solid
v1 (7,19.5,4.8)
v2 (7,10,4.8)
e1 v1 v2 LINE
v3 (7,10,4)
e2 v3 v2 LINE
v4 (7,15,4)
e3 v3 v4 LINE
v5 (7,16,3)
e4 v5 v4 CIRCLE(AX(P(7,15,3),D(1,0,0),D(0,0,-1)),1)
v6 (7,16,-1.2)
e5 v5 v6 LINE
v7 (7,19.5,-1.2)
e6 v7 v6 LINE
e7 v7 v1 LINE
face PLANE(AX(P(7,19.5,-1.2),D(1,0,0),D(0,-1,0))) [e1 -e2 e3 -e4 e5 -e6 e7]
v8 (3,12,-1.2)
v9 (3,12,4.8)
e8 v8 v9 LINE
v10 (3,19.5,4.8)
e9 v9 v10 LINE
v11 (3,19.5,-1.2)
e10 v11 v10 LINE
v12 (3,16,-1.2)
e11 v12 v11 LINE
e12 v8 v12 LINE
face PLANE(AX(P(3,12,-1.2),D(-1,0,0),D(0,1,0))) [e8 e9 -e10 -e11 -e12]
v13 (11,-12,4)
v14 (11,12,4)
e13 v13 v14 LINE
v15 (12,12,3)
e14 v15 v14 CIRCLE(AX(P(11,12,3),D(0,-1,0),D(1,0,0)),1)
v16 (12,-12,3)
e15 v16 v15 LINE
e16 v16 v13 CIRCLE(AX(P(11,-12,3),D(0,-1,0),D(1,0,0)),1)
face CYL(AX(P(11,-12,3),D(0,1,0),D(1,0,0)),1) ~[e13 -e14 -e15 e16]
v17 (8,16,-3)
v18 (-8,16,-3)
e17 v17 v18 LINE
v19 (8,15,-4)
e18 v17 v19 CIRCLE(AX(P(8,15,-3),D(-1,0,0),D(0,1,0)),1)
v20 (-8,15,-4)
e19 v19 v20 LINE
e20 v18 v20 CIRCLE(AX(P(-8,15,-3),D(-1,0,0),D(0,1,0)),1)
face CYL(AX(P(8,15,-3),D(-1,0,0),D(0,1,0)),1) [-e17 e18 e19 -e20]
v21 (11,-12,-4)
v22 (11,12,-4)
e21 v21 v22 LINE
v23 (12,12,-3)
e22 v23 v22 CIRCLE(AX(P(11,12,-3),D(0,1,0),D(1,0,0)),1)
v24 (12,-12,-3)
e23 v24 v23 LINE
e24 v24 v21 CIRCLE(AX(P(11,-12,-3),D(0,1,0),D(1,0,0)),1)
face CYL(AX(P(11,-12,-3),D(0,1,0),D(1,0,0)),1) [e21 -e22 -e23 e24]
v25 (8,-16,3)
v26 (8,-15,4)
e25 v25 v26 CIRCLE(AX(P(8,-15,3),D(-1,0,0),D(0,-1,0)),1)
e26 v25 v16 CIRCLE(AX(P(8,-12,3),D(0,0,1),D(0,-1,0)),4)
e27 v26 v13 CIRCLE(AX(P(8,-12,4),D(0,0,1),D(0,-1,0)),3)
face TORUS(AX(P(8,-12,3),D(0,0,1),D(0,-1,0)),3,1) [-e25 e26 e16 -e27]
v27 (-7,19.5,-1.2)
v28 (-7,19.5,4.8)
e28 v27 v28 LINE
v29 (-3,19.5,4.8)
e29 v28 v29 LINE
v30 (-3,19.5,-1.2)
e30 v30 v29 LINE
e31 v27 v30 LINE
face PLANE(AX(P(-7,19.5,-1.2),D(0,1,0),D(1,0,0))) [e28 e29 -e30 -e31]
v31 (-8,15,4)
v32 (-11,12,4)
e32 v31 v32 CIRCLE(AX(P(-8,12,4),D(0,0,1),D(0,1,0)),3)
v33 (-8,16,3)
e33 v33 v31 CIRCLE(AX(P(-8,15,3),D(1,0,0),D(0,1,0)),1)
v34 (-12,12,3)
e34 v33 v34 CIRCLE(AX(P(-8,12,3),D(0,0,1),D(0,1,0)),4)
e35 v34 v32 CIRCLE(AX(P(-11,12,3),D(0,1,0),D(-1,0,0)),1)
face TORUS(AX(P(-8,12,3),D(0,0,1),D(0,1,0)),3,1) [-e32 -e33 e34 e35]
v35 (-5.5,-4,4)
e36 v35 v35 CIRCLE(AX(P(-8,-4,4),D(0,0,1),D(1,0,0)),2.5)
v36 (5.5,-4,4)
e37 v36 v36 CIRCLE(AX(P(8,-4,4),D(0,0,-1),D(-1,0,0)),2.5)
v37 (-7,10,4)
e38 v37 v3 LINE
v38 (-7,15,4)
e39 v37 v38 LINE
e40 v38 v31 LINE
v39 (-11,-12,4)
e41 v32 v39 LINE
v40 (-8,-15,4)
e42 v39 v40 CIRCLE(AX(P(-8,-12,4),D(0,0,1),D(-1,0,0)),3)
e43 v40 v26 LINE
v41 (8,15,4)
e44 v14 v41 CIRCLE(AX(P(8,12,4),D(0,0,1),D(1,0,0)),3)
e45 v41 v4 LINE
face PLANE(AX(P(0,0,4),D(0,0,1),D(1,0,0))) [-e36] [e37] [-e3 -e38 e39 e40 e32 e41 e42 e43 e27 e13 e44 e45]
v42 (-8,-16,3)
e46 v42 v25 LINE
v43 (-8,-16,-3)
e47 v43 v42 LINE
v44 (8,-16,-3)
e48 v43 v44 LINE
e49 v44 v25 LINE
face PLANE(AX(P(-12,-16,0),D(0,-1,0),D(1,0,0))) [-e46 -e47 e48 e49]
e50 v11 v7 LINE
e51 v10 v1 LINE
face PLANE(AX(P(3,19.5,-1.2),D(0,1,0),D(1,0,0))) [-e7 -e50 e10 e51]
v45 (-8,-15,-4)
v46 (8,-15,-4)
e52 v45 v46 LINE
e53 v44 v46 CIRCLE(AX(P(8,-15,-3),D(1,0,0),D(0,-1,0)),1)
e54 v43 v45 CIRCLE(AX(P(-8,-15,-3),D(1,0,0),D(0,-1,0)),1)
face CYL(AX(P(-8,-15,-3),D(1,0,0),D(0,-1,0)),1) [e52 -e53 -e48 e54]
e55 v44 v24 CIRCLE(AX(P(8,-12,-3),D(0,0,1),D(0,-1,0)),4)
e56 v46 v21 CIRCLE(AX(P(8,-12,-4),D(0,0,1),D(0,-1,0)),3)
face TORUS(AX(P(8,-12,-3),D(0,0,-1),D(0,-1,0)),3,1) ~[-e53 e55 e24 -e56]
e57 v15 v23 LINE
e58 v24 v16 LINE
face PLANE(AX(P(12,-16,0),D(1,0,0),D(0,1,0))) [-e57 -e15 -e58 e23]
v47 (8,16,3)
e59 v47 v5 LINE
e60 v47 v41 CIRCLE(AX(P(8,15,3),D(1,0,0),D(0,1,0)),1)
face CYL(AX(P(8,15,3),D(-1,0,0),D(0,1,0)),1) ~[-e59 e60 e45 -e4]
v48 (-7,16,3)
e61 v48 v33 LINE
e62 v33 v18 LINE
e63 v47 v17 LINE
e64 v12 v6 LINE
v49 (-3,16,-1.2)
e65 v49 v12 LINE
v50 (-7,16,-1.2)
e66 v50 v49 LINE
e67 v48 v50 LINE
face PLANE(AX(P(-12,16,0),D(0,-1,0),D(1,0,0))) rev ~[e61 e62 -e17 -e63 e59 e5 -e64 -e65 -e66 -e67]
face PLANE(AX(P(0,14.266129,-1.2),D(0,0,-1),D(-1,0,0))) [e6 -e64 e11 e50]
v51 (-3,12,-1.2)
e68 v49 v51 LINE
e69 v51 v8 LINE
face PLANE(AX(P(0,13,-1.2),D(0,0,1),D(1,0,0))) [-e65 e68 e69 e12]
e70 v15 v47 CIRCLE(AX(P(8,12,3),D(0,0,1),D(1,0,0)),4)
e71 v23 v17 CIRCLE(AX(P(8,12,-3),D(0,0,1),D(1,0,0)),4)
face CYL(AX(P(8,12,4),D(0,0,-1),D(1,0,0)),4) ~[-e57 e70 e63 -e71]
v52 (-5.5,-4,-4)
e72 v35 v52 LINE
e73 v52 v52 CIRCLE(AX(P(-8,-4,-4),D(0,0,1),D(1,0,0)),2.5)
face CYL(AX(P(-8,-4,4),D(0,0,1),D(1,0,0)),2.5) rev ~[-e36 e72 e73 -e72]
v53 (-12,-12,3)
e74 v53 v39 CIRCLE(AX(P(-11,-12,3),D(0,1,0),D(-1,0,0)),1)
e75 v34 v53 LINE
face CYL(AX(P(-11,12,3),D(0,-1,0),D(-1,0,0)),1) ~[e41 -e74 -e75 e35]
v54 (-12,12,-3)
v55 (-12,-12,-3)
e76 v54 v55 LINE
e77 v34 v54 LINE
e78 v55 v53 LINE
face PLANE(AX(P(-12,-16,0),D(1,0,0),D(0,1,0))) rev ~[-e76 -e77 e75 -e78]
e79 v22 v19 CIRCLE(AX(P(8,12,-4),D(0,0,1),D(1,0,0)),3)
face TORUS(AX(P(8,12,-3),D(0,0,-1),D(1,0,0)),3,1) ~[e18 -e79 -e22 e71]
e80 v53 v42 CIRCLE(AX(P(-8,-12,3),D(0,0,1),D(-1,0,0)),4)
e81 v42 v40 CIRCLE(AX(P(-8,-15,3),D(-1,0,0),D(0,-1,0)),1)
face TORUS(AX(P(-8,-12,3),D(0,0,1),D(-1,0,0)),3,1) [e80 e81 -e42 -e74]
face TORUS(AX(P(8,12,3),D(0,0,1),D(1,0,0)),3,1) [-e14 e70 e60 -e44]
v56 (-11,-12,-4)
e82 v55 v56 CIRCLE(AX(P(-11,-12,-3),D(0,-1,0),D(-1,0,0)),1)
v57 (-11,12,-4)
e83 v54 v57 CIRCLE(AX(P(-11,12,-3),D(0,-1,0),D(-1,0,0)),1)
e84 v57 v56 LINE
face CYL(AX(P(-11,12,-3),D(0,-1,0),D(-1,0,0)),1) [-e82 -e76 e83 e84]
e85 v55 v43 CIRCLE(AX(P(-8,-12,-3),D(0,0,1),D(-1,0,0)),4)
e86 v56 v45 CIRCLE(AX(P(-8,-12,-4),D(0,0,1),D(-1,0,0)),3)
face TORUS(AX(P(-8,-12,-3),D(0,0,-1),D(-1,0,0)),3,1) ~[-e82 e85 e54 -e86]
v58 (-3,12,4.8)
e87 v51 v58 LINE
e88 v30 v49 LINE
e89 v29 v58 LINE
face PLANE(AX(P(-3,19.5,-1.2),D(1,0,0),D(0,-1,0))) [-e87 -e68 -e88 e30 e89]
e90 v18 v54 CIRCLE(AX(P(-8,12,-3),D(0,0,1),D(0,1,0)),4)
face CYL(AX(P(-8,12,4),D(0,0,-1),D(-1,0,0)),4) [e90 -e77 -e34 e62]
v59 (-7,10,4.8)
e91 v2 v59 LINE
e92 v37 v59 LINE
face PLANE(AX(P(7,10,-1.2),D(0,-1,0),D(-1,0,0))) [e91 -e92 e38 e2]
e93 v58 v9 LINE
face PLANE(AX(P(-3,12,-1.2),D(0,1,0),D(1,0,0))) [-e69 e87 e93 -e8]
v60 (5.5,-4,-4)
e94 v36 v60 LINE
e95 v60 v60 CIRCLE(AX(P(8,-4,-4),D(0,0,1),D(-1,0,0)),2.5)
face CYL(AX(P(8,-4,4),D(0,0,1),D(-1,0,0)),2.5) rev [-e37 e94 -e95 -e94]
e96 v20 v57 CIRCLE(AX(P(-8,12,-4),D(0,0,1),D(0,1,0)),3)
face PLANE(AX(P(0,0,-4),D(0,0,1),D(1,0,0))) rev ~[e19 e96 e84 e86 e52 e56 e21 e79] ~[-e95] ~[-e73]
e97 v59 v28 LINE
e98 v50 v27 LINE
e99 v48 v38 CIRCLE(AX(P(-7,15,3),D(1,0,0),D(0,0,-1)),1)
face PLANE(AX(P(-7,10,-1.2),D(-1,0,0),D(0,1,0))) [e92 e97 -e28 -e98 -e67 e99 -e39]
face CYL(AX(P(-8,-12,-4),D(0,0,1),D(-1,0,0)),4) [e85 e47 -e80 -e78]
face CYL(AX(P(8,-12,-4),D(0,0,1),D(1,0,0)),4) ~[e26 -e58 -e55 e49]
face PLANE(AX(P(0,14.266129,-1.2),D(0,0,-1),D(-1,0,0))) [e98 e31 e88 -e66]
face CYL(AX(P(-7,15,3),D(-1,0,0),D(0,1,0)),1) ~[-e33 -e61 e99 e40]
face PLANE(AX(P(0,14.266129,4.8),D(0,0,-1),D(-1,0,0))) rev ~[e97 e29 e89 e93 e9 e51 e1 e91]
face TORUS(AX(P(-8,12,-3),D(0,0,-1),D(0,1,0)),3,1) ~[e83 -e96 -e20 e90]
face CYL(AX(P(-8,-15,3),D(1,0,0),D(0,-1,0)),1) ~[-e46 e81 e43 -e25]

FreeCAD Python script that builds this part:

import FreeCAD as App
import Part
import Sketcher

V = App.Vector
Q = App.Units.Quantity


def edges_at(feature, points):
    """Names of the edges that pass closest to the given points."""
    edges = feature.Shape.Edges
    near = lambda p: min(range(len(edges)), key=lambda i: edges[i].distToShape(Part.Vertex(*p))[0])
    return sorted({f"Edge{near(p) + 1}" for p in points})


def add_polygon(sketch, points):
    """Adds a closed chain of lines whose ends are joined by coincident constraints."""
    first, n = sketch.GeometryCount, len(points)
    for a, b in zip(points, points[1:] + points[:1]):
        sketch.addGeometry(Part.LineSegment(App.Vector(*a, 0), App.Vector(*b, 0)), False)
    for i in range(n):
        sketch.addConstraint(Sketcher.Constraint("Coincident", first + i, 2, first + (i + 1) % n, 1))

doc = App.newDocument("Part")
body = doc.addObject("PartDesign::Body", "Body")

sketch1 = doc.addObject("Sketcher::SketchObject", "Sketch")
body.addObject(sketch1)
sketch1.AttachmentSupport = (doc.XY_Plane, [""])
sketch1.MapMode = "FlatFace"
add_polygon(sketch1, [(-12, 16), (-12, -16), (12, -16), (12, 16)])
sketch1.addConstraint([
    Sketcher.Constraint("Vertical", 0),
    Sketcher.Constraint("Horizontal", 1),
    Sketcher.Constraint("Vertical", 2),
    Sketcher.Constraint("Horizontal", 3),
    Sketcher.Constraint("Symmetric", 0, 2, 2, 2, -1, 1),
    Sketcher.Constraint("DistanceX", 1, 1, 1, 2, Q("24 mm")),
    Sketcher.Constraint("DistanceY", 0, 2, 0, 1, Q("32 mm")),
])
pad1 = doc.addObject("PartDesign::Pad", "Pad")
body.addObject(pad1)
pad1.Profile = sketch1
pad1.Length = 8
pad1.Midplane = True
doc.recompute()

fillet = doc.addObject("PartDesign::Fillet", "Fillet")
body.addObject(fillet)
fillet.Base = (pad1, edges_at(pad1, [
    (-12, -16, 0),
    (12, -16, 0),
    (12, 16, 0),
    (-12, 16, 0),
]))
fillet.Radius = 4

sketch2 = doc.addObject("Sketcher::SketchObject", "Sketch001")
body.addObject(sketch2)
sketch2.AttachmentSupport = (doc.XY_Plane, [""])
sketch2.MapMode = "FlatFace"
sketch2.AttachmentOffset = App.Placement(V(0, 0, 4), App.Rotation())
sketch2.addGeometry(Part.Circle(V(-8, -4, 0), V(0, 0, 1), 2.5), False)
sketch2.addConstraint([
    Sketcher.Constraint("Diameter", 0, Q("5 mm")),
    Sketcher.Constraint("DistanceX", 0, 3, -1, 1, Q("8 mm")),
    Sketcher.Constraint("DistanceY", 0, 3, -1, 1, Q("4 mm")),
])
pocket1 = doc.addObject("PartDesign::Pocket", "Pocket")
body.addObject(pocket1)
pocket1.Profile = sketch2
pocket1.Length = 25
doc.recompute()

mirrored = doc.addObject("PartDesign::Mirrored", "Mirrored")
body.addObject(mirrored)
mirrored.Originals = [pocket1]
mirrored.MirrorPlane = (doc.YZ_Plane, [""])
body.Tip = mirrored

sketch3 = doc.addObject("Sketcher::SketchObject", "Sketch002")
body.addObject(sketch3)
sketch3.AttachmentSupport = (doc.XY_Plane, [""])
sketch3.MapMode = "FlatFace"
sketch3.AttachmentOffset = App.Placement(V(0, 0, 4), App.Rotation())
add_polygon(sketch3, [(-7, 16), (-7, 10), (7, 10), (7, 16)])
sketch3.addConstraint([
    Sketcher.Constraint("Vertical", 0),
    Sketcher.Constraint("Horizontal", 1),
    Sketcher.Constraint("Vertical", 2),
    Sketcher.Constraint("Horizontal", 3),
    Sketcher.Constraint("DistanceX", 1, 1, 1, 2, Q("14 mm")),
    Sketcher.Constraint("DistanceY", 0, 2, 0, 1, Q("6 mm")),
    Sketcher.Constraint("DistanceX", 0, 2, -1, 1, Q("7 mm")),
    Sketcher.Constraint("DistanceY", -1, 1, 0, 2, Q("10 mm")),
])
pocket2 = doc.addObject("PartDesign::Pocket", "Pocket001")
body.addObject(pocket2)
pocket2.Profile = sketch3
pocket2.Length = 5.2

sketch4 = doc.addObject("Sketcher::SketchObject", "Sketch003")
body.addObject(sketch4)
sketch4.AttachmentSupport = (doc.XY_Plane, [""])
sketch4.MapMode = "FlatFace"
sketch4.AttachmentOffset = App.Placement(V(0, 0, -1.2), App.Rotation())
add_polygon(sketch4, [(-7, 10), (7, 10), (7, 19.5), (3, 19.5), (3, 12), (-3, 12), (-3, 19.5), (-7, 19.5)])
sketch4.addConstraint([
    Sketcher.Constraint("Horizontal", 0),
    Sketcher.Constraint("Vertical", 1),
    Sketcher.Constraint("Horizontal", 2),
    Sketcher.Constraint("Vertical", 3),
    Sketcher.Constraint("Horizontal", 4),
    Sketcher.Constraint("Vertical", 5),
    Sketcher.Constraint("Horizontal", 6),
    Sketcher.Constraint("Vertical", 7),
    Sketcher.Constraint("Symmetric", 2, 2, 5, 2, -2),
    Sketcher.Constraint("Equal", 2, 6),
    Sketcher.Constraint("DistanceX", 0, 1, 0, 2, Q("14 mm")),
    Sketcher.Constraint("DistanceX", 2, 2, 2, 1, Q("4 mm")),
    Sketcher.Constraint("DistanceY", 1, 1, 1, 2, Q("9.5 mm")),
    Sketcher.Constraint("DistanceY", 3, 2, 3, 1, Q("7.5 mm")),
    Sketcher.Constraint("DistanceY", -1, 1, 0, 2, Q("10 mm")),
])
pad2 = doc.addObject("PartDesign::Pad", "Pad001")
body.addObject(pad2)
pad2.Profile = sketch4
pad2.Length = 6
doc.recompute()

fillet2 = doc.addObject("PartDesign::Fillet", "Fillet001")
body.addObject(fillet2)
fillet2.Base = (pad2, edges_at(pad2, [
    (0, -16, -4),
    (10.828, -14.828, -4),
    (12, 0, -4),
    (10.828, 14.828, -4),
    (-10.828, -14.828, -4),
    (-12, 0, -4),
    (-10.828, 14.828, -4),
    (0, 16, -4),
]))
fillet2.Radius = 1
doc.recompute()

fillet3 = doc.addObject("PartDesign::Fillet", "Fillet002")
body.addObject(fillet3)
fillet3.Base = (fillet2, edges_at(fillet2, [
    (-10.828, -14.828, 4),
    (-12, 0, 4),
    (-10.828, 14.828, 4),
    (10.828, 14.828, 4),
    (12, 0, 4),
    (10.828, -14.828, 4),
    (0, -16, 4),
    (-7.5, 16, 4),
    (7.5, 16, 4),
]))
fillet3.Radius = 1

doc.recompute()
